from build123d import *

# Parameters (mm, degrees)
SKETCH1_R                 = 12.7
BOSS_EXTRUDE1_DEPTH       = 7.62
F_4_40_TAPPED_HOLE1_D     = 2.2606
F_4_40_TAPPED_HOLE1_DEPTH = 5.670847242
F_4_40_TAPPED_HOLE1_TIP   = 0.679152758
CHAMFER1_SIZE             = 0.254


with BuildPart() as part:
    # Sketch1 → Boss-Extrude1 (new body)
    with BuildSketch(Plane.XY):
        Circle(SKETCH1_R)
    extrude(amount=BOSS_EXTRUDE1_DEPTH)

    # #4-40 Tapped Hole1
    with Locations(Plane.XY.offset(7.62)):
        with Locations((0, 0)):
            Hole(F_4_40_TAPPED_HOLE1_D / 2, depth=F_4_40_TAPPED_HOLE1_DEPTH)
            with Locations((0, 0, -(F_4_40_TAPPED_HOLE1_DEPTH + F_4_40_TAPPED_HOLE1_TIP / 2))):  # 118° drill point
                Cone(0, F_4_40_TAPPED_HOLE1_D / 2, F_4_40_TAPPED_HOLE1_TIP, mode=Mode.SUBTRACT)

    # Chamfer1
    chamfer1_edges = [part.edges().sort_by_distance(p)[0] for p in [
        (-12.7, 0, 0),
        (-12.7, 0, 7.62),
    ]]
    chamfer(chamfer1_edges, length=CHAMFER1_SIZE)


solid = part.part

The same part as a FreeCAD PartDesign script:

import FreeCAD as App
import Part
import Sketcher

V = App.Vector
Q = App.Units.Quantity


def edges_at(feature, points):
    """Names of the edges that pass closest to the given points."""
    edges = feature.Shape.Edges
    near = lambda p: min(range(len(edges)), key=lambda i: edges[i].distToShape(Part.Vertex(*p))[0])
    return sorted({f"Edge{near(p) + 1}" for p in points})

doc = App.newDocument("Part")
body = doc.addObject("PartDesign::Body", "Body")

sketch1 = body.newObject("Sketcher::SketchObject", "Sketch")
sketch1.AttachmentSupport = (doc.getObject("XY_Plane"), [""])
sketch1.MapMode = "FlatFace"
sketch1.addGeometry(Part.Circle(V(0, 0, 0), V(0, 0, 1), 12.7), False)
sketch1.addConstraint(Sketcher.Constraint("Coincident", 0, 3, -1, 1))
sketch1.addConstraint(Sketcher.Constraint("Diameter", 0, Q("1 in")))
pad1 = body.newObject("PartDesign::Pad", "Pad")
pad1.Profile = sketch1
pad1.Length = Q("0.3 in")

sketch2 = body.newObject("Sketcher::SketchObject", "Sketch001")
sketch2.AttachmentSupport = (doc.getObject("XY_Plane"), [""])
sketch2.MapMode = "FlatFace"
sketch2.AttachmentOffset = App.Placement(V(0, 0, 0.3 * 25.4), App.Rotation())
sketch2.addGeometry(Part.Circle(V(0, 0, 0), V(0, 0, 1), 1.1303), False)
sketch2.addConstraint(Sketcher.Constraint("Coincident", 0, 3, -1, 1))
sketch2.addConstraint(Sketcher.Constraint("Diameter", 0, Q("0.089 in")))
doc.recompute()
hole = body.newObject("PartDesign::Hole", "Hole")
hole.Profile = sketch2
hole.ThreadType = "None"
hole.Diameter = Q("0.089 in")
hole.DepthType = "Dimension"
hole.Depth = 5.670847
hole.DrillPoint = "Angled"
hole.DrillPointAngle = 118
doc.recompute()

chamfer = body.newObject("PartDesign::Chamfer", "Chamfer")
chamfer.Base = (hole, edges_at(hole, [(-12.7, 0, 0), (-12.7, 0, 7.62)]))
chamfer.Size = Q("0.01 in")

doc.recompute()
